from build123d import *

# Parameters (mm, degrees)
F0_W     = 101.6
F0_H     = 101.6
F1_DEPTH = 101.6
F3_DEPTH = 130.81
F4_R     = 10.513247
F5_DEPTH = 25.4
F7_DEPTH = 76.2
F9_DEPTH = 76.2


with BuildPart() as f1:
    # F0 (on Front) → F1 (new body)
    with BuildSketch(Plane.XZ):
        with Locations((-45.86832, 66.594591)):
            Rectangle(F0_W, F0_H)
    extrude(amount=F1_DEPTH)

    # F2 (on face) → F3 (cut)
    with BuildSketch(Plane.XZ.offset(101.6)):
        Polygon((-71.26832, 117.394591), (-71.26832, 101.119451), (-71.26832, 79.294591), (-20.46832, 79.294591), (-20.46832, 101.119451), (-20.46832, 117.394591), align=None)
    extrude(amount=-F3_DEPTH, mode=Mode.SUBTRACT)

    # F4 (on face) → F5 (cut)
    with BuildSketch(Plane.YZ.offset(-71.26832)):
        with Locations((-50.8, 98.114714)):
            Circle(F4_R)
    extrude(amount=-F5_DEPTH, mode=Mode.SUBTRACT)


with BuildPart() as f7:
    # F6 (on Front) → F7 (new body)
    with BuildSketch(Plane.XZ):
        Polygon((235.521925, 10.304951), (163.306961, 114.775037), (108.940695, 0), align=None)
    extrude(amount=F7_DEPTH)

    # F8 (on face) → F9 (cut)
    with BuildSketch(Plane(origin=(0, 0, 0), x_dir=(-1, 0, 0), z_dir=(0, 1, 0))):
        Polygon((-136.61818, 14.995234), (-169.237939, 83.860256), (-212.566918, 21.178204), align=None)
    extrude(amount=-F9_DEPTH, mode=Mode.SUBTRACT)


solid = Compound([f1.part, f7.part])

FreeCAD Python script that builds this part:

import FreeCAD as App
import Part
import Sketcher

V = App.Vector
Q = App.Units.Quantity


def add_polygon(sketch, points):
    """Adds a closed chain of lines whose ends are joined by coincident constraints."""
    first, n = sketch.GeometryCount, len(points)
    for a, b in zip(points, points[1:] + points[:1]):
        sketch.addGeometry(Part.LineSegment(App.Vector(*a, 0), App.Vector(*b, 0)), False)
    for i in range(n):
        sketch.addConstraint(Sketcher.Constraint("Coincident", first + i, 2, first + (i + 1) % n, 1))

doc = App.newDocument("Part")
params = doc.addObject("Spreadsheet::Sheet", "Params")
for row, (alias, value) in enumerate([
    ("sketch1_width", "4 in"),
    ("pad1_length", "4 in"),
    ("sketch2_width", "2 in"),
    ("sketch2_height", "1.5 in"),
    ("pocket1_length", "5.15 in"),
    ("pocket2_length", "1 in"),
    ("sketch4_length", "5 in"),
    ("pad2_length", "3 in"),
    ("sketch5_length", "3 in"),
    ("pocket3_length", "3 in"),
], start=1):
    params.set(f"A{row}", alias)
    params.set(f"B{row}", "=" + value)
    params.setAlias(f"B{row}", alias)

body = doc.addObject("PartDesign::Body", "Body")

# Sketch on XZ plane
sketch1 = doc.addObject("Sketcher::SketchObject", "Sketch")
body.addObject(sketch1)
sketch1.AttachmentSupport = (doc.XZ_Plane, [""])
sketch1.MapMode = "FlatFace"
add_polygon(sketch1, [(-97, 117), (-97, 16), (5, 16), (5, 117)])  # lines 0-3
sketch1.addConstraint([
    Sketcher.Constraint("Vertical", 0),
    Sketcher.Constraint("Horizontal", 1),
    Sketcher.Constraint("Vertical", 2),
    Sketcher.Constraint("Horizontal", 3),
    Sketcher.Constraint("Equal", 3, 0),
    Sketcher.Constraint("DistanceX", 1, 1, 1, 2, Q("4 in")),
    Sketcher.Constraint("DistanceX", 0, 2, -1, 1, 96.66832),
    Sketcher.Constraint("DistanceY", -1, 1, 0, 2, 15.794591),
])
sketch1.setExpression("Constraints[9]", "Params.sketch1_width")
pad1 = doc.addObject("PartDesign::Pad", "Pad")
body.addObject(pad1)
pad1.Profile = sketch1
pad1.setExpression("Length", "Params.pad1_length")

# Sketch on XZ plane
sketch2 = doc.addObject("Sketcher::SketchObject", "Sketch001")
body.addObject(sketch2)
sketch2.AttachmentSupport = (doc.XZ_Plane, [""])
sketch2.MapMode = "FlatFace"
sketch2.AttachmentOffset = App.Placement(V(0, 0, 4 * 25.4), App.Rotation())
add_polygon(sketch2, [(-71, 117), (-71, 79), (-20, 79), (-20, 117)])  # lines 0-3
sketch2.addConstraint([
    Sketcher.Constraint("Vertical", 0),
    Sketcher.Constraint("Horizontal", 1),
    Sketcher.Constraint("Vertical", 2),
    Sketcher.Constraint("Horizontal", 3),
    Sketcher.Constraint("DistanceX", 1, 1, 1, 2, Q("2 in")),
    Sketcher.Constraint("DistanceY", 0, 2, 0, 1, Q("1.5 in")),
    Sketcher.Constraint("DistanceX", 0, 2, -1, 1, 71.26832),
    Sketcher.Constraint("DistanceY", -1, 1, 0, 2, 79.294591),
])
sketch2.setExpression("Constraints[8]", "Params.sketch2_width")
sketch2.setExpression("Constraints[9]", "Params.sketch2_height")
pocket1 = doc.addObject("PartDesign::Pocket", "Pocket")
body.addObject(pocket1)
pocket1.Profile = sketch2
pocket1.setExpression("Length", "Params.pocket1_length")

# Sketch on YZ plane
sketch3 = doc.addObject("Sketcher::SketchObject", "Sketch002")
body.addObject(sketch3)
sketch3.AttachmentSupport = (doc.YZ_Plane, [""])
sketch3.MapMode = "FlatFace"
sketch3.AttachmentOffset = App.Placement(V(0, 0, -71.26832), App.Rotation())
sketch3.addGeometry(Part.Circle(V(-51, 98, 0), V(0, 0, 1), 11), False)
sketch3.addConstraint([
    Sketcher.Constraint("DistanceX", 0, 3, -1, 1, Q("2 in")),
    Sketcher.Constraint("Diameter", 0, 21.026494),
    Sketcher.Constraint("DistanceY", -1, 1, 0, 3, 98.114714),
])
pocket2 = doc.addObject("PartDesign::Pocket", "Pocket001")
body.addObject(pocket2)
pocket2.Profile = sketch3
pocket2.setExpression("Length", "Params.pocket2_length")
body2 = doc.addObject("PartDesign::Body", "Body001")

# Sketch on XZ plane
sketch4 = doc.addObject("Sketcher::SketchObject", "Sketch003")
body2.addObject(sketch4)
sketch4.AttachmentSupport = (doc.getObject("XZ_Plane001"), [""])
sketch4.MapMode = "FlatFace"
add_polygon(sketch4, [(236, 10), (163, 115), (109, 0)])  # lines 0-2
sketch4.addConstraint([
    Sketcher.Constraint("PointOnObject", 1, 2, -1),
    Sketcher.Constraint("Equal", 0, 1),
    Sketcher.Constraint("Equal", 1, 2),
    Sketcher.Constraint("Distance", 0, Q("5 in")),
    Sketcher.Constraint("DistanceX", -1, 1, 0, 2, 163.306961),
    Sketcher.Constraint("DistanceY", -1, 1, 2, 2, 10.304951),
])
sketch4.setExpression("Constraints[6]", "Params.sketch4_length")
pad2 = doc.addObject("PartDesign::Pad", "Pad001")
body2.addObject(pad2)
pad2.Profile = sketch4
pad2.setExpression("Length", "Params.pad2_length")

# Sketch on XZ plane
sketch5 = doc.addObject("Sketcher::SketchObject", "Sketch004")
body2.addObject(sketch5)
sketch5.AttachmentSupport = (doc.getObject("XZ_Plane001"), [""])
sketch5.MapMode = "FlatFace"
add_polygon(sketch5, [(137, 15), (169, 84), (213, 21)])  # lines 0-2
sketch5.addConstraint([
    Sketcher.Constraint("Equal", 0, 1),
    Sketcher.Constraint("Equal", 1, 2),
    Sketcher.Constraint("Distance", 0, Q("3 in")),
    Sketcher.Constraint("DistanceX", -1, 1, 0, 2, 169.237939),
    Sketcher.Constraint("DistanceX", -1, 1, 2, 2, 136.61818),
    Sketcher.Constraint("DistanceY", -1, 1, 0, 2, 83.860256),
])
sketch5.setExpression("Constraints[5]", "Params.sketch5_length")
pocket3 = doc.addObject("PartDesign::Pocket", "Pocket002")
body2.addObject(pocket3)
pocket3.Profile = sketch5
pocket3.setExpression("Length", "Params.pocket3_length")
pocket3.Reversed = True

doc.recompute()
